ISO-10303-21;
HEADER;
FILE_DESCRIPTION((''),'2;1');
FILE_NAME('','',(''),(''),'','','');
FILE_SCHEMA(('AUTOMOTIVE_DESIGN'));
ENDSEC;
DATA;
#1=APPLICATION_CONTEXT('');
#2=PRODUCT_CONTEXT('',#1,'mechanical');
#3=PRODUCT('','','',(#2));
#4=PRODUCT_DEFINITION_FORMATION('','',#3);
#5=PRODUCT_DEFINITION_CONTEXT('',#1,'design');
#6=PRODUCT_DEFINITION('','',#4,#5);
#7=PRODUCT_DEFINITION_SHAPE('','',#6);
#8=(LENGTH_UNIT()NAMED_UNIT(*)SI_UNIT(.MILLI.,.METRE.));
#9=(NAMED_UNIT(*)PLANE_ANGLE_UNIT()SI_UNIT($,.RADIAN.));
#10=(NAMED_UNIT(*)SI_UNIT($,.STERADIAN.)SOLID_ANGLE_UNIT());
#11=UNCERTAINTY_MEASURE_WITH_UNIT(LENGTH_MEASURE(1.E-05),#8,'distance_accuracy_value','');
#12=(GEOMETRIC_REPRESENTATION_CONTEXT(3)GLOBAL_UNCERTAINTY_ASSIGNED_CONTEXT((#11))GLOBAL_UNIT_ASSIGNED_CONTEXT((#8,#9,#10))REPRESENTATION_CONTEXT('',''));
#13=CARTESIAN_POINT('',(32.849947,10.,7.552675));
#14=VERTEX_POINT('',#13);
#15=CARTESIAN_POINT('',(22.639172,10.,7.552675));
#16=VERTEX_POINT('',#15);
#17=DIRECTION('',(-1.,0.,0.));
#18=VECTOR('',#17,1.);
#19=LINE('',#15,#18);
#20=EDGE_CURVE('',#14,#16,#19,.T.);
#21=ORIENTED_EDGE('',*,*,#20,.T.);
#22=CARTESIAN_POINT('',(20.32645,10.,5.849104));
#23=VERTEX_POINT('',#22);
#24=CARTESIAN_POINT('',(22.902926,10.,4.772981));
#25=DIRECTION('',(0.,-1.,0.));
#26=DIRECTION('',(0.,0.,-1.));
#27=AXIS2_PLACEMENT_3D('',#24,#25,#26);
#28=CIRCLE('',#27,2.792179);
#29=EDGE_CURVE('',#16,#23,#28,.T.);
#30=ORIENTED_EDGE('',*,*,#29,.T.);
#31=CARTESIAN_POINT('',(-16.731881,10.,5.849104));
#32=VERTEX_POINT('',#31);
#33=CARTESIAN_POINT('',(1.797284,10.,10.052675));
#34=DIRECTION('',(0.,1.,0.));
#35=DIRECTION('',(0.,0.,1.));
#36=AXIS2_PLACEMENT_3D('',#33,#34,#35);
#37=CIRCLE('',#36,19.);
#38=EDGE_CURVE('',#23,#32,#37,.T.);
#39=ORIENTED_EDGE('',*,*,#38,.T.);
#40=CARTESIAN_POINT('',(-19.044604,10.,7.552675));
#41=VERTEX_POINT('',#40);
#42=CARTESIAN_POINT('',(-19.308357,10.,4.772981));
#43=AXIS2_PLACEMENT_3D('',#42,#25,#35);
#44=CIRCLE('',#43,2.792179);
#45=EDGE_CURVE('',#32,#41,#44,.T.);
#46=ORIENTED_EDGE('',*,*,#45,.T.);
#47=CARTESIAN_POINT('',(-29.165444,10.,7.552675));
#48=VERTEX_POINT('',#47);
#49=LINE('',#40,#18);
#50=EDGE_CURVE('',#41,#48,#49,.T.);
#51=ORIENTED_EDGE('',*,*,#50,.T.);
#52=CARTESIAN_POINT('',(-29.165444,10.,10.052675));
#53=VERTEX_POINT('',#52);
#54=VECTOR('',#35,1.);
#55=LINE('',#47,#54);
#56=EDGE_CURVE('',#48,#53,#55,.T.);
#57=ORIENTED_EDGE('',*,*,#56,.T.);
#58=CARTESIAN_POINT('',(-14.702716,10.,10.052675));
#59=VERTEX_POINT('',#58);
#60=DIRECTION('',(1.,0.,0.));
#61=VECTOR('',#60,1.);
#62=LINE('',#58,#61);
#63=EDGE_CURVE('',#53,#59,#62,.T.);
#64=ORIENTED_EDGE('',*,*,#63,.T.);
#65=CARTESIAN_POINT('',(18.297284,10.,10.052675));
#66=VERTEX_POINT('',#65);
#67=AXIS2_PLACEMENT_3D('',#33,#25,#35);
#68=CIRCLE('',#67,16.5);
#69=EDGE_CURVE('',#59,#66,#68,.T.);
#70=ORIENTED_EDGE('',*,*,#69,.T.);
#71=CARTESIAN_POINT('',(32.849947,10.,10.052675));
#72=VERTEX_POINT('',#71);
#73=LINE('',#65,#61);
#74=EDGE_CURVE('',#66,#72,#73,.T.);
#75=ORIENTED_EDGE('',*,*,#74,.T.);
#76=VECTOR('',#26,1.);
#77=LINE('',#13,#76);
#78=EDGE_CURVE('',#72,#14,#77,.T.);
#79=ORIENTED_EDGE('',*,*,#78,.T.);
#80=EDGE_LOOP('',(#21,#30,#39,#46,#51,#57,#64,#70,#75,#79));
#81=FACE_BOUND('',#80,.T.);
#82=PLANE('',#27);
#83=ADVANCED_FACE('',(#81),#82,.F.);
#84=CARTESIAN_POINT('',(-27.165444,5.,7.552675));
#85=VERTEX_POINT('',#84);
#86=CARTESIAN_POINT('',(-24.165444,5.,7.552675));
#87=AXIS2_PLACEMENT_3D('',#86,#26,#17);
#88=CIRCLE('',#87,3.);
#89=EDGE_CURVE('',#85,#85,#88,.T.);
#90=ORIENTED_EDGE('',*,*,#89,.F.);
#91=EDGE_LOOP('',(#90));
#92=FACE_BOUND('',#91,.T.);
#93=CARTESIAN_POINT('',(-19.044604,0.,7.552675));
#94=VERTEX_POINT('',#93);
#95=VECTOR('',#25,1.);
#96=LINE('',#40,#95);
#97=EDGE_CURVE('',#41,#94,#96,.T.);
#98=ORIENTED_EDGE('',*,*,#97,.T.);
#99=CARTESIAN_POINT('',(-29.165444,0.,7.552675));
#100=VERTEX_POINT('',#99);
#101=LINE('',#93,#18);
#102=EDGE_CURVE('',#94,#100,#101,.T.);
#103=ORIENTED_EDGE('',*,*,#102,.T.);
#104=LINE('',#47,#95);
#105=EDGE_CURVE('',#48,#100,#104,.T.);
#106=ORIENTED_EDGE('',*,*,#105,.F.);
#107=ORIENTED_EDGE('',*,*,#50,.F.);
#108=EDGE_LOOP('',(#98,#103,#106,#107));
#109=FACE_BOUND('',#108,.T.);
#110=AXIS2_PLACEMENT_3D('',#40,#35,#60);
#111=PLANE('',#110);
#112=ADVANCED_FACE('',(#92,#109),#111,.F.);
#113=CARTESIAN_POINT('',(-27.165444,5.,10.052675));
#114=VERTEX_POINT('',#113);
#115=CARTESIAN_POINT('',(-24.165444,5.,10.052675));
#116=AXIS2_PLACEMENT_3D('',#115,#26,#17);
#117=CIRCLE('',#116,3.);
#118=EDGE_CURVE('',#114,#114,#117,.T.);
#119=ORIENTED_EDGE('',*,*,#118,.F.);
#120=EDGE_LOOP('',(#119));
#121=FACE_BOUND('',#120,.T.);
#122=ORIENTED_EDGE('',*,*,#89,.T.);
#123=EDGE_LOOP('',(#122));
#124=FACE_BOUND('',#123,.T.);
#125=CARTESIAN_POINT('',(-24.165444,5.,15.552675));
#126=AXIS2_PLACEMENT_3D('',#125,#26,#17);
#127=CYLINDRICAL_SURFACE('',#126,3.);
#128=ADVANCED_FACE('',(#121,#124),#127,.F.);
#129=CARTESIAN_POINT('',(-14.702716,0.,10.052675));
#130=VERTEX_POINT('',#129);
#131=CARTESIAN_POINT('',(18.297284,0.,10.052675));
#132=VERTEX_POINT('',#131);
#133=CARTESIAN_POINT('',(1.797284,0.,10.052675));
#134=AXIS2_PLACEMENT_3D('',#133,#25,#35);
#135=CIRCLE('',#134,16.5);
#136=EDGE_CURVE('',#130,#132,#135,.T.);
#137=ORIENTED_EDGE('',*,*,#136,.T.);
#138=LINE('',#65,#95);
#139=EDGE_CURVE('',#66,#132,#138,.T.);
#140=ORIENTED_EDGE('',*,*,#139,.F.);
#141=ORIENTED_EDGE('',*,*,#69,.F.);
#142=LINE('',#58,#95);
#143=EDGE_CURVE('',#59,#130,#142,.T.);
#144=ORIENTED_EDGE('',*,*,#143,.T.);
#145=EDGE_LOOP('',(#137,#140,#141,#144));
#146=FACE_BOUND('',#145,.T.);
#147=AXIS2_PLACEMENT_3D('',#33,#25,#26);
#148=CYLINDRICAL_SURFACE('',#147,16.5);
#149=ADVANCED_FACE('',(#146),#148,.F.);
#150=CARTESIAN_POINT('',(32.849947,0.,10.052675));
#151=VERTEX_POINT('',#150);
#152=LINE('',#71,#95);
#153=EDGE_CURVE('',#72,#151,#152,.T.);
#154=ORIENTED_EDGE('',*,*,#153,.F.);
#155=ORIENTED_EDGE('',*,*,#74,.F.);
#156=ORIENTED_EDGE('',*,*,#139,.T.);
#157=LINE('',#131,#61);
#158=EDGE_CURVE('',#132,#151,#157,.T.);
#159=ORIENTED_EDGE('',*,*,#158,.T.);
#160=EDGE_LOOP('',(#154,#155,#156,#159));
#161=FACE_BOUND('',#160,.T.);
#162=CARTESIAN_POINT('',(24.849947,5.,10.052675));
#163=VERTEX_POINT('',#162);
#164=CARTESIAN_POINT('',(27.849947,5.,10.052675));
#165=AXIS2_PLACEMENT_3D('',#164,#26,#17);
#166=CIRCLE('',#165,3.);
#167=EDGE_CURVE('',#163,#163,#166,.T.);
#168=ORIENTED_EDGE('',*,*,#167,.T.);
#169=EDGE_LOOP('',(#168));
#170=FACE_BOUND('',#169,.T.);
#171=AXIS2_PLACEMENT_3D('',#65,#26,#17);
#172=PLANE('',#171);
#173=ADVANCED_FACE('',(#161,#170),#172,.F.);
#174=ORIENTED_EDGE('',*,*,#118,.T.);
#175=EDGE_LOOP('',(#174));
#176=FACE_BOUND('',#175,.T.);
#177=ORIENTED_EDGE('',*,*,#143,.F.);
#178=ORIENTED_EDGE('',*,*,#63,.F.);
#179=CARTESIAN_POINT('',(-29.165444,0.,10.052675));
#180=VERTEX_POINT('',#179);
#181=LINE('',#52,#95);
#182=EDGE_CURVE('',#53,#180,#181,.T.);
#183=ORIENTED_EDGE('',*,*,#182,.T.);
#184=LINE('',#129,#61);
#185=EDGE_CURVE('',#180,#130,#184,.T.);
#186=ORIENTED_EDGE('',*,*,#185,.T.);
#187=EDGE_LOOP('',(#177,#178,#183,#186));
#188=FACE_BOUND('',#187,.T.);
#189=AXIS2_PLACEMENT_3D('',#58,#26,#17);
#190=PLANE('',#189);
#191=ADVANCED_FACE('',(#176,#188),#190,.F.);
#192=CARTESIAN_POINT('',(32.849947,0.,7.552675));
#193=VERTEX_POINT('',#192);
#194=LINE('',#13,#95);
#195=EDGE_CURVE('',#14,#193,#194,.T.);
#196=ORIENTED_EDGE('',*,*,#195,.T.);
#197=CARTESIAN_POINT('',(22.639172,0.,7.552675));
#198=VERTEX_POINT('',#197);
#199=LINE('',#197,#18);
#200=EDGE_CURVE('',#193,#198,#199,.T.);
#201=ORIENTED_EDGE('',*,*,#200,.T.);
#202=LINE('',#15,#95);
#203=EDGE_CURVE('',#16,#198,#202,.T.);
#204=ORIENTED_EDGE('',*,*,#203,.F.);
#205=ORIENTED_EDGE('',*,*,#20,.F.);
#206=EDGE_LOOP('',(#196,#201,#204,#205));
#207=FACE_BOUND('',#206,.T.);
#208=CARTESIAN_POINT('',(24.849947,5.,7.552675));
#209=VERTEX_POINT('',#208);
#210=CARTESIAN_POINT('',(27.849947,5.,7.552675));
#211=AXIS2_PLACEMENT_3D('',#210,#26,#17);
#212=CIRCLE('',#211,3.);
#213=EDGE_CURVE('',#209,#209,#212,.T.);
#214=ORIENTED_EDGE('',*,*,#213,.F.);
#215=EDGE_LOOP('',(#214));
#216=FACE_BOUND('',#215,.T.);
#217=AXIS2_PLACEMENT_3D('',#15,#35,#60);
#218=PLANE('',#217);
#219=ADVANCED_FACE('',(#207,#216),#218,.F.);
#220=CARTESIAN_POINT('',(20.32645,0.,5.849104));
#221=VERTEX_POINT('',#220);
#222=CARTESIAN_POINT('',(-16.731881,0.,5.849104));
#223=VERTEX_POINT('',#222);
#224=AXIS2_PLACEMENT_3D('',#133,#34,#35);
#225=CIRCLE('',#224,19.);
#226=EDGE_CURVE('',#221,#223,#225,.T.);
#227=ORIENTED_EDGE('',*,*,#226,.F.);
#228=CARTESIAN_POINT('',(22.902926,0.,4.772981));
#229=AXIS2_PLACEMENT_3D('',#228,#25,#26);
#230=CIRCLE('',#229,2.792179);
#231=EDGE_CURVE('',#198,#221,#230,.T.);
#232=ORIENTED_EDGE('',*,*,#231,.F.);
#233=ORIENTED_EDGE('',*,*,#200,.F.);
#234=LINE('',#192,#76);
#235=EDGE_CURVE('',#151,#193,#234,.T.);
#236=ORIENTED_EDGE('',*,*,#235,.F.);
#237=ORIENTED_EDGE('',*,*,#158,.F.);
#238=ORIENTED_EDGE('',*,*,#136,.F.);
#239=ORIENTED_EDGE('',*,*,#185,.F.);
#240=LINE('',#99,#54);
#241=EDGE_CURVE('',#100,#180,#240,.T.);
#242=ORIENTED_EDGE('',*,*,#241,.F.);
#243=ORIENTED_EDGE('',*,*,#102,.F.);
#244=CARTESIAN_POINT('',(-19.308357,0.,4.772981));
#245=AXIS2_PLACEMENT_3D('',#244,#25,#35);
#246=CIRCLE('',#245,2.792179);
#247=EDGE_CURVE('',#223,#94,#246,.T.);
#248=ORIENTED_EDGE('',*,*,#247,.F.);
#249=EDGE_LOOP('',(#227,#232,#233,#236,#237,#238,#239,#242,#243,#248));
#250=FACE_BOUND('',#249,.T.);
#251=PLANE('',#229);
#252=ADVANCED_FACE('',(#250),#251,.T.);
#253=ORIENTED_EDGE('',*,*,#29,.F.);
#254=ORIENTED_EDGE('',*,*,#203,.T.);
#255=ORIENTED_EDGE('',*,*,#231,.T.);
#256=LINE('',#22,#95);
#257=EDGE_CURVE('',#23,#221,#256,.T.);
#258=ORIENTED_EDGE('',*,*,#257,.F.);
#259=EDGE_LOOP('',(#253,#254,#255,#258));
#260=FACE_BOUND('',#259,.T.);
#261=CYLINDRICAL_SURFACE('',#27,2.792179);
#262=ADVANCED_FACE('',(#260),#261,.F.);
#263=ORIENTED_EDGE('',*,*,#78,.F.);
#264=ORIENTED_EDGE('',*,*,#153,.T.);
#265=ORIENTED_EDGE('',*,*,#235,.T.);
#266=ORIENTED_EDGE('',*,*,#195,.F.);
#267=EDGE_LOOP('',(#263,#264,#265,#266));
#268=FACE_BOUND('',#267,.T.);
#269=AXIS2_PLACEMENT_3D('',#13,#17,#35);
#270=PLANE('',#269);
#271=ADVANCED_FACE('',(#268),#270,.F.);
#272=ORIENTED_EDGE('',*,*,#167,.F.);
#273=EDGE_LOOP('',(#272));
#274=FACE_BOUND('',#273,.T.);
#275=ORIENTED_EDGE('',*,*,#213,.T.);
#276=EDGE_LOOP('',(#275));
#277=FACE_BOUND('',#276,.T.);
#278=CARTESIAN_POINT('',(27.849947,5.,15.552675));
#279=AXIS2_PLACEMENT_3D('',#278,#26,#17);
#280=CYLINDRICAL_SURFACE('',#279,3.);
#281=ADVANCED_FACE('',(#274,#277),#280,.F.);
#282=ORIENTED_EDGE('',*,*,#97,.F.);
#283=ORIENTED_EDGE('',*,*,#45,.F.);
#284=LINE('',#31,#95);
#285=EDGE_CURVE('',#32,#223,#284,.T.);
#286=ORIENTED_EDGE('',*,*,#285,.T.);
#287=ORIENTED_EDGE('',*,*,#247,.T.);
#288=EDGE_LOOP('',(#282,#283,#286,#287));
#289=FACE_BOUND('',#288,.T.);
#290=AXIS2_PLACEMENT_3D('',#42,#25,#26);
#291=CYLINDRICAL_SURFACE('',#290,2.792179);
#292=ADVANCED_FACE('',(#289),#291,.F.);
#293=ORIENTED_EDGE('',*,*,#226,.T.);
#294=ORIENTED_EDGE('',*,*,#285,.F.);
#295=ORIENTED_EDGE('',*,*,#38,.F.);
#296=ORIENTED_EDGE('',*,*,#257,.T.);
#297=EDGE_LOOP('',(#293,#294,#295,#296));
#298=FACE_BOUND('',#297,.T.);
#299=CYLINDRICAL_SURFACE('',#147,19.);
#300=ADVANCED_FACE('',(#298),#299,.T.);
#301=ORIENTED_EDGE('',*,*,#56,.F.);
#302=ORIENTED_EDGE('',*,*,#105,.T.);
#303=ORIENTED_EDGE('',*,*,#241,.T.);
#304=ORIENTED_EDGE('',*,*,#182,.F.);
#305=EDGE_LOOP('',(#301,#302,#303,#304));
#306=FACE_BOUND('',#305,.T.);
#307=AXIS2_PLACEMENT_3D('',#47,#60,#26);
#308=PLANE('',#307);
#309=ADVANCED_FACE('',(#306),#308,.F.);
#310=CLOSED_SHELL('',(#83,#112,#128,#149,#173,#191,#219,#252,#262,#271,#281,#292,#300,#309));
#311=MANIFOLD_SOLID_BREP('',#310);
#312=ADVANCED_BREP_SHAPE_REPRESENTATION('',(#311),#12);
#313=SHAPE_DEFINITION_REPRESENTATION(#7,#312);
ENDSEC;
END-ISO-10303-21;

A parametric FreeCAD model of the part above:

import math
import FreeCAD as App
import Part
import Sketcher

V = App.Vector

doc = App.newDocument("Part")
body = doc.addObject("PartDesign::Body", "Body")

# Sketch on XZ plane
sketch1 = body.newObject("Sketcher::SketchObject", "Sketch")
sketch1.AttachmentSupport = (doc.getObject("XZ_Plane"), [""])
sketch1.MapMode = "FlatFace"
sketch1.addGeometry(Part.LineSegment(V(-29.2, 10.1, 0), V(-14.7, 10.1, 0)), False)
sketch1.addGeometry(Part.ArcOfCircle(Part.Circle(V(1.8, 10.1, 0), V(0, 0, 1), 16.5), math.radians(180), math.radians(360)), False)
sketch1.addGeometry(Part.LineSegment(V(18.3, 10.1, 0), V(32.8, 10.1, 0)), False)
sketch1.addGeometry(Part.LineSegment(V(32.8, 10.1, 0), V(32.8, 7.6, 0)), False)
sketch1.addGeometry(Part.LineSegment(V(32.8, 7.6, 0), V(22.6, 7.6, 0)), False)
sketch1.addGeometry(Part.ArcOfCircle(Part.Circle(V(22.9, 4.8, 0), V(0, 0, 1), 2.8), math.radians(95), math.radians(157)), False)
sketch1.addGeometry(Part.ArcOfCircle(Part.Circle(V(1.8, 10.1, 0), V(0, 0, 1), 19), math.radians(-167), math.radians(-13)), False)
sketch1.addGeometry(Part.ArcOfCircle(Part.Circle(V(-19.3, 4.8, 0), V(0, 0, 1), 2.8), math.radians(23), math.radians(85)), False)
sketch1.addGeometry(Part.LineSegment(V(-19, 7.6, 0), V(-29.2, 7.6, 0)), False)
sketch1.addGeometry(Part.LineSegment(V(-29.2, 7.6, 0), V(-29.2, 10.1, 0)), False)
sketch1.addConstraint(Sketcher.Constraint("Coincident", 0, 2, 1, 1))
sketch1.addConstraint(Sketcher.Constraint("Coincident", 1, 2, 2, 1))
sketch1.addConstraint(Sketcher.Constraint("Coincident", 2, 2, 3, 1))
sketch1.addConstraint(Sketcher.Constraint("Coincident", 3, 2, 4, 1))
sketch1.addConstraint(Sketcher.Constraint("Coincident", 4, 2, 5, 1))
sketch1.addConstraint(Sketcher.Constraint("Coincident", 5, 2, 6, 2))
sketch1.addConstraint(Sketcher.Constraint("Coincident", 6, 1, 7, 1))
sketch1.addConstraint(Sketcher.Constraint("Coincident", 7, 2, 8, 1))
sketch1.addConstraint(Sketcher.Constraint("Coincident", 8, 2, 9, 1))
sketch1.addConstraint(Sketcher.Constraint("Coincident", 9, 2, 0, 1))
sketch1.addConstraint(Sketcher.Constraint("Horizontal", 0))
sketch1.addConstraint(Sketcher.Constraint("Horizontal", 2))
sketch1.addConstraint(Sketcher.Constraint("Vertical", 3))
sketch1.addConstraint(Sketcher.Constraint("Horizontal", 4))
sketch1.addConstraint(Sketcher.Constraint("Horizontal", 8))
sketch1.addConstraint(Sketcher.Constraint("Vertical", 9))
sketch1.addConstraint(Sketcher.Constraint("Coincident", 6, 3, 1, 3))
sketch1.addConstraint(Sketcher.Constraint("Equal", 5, 7))
sketch1.addConstraint(Sketcher.Constraint("Horizontal", 5, 3, 7, 3))
sketch1.addConstraint(Sketcher.Constraint("Horizontal", 6, 3, 0, 2))
sketch1.addConstraint(Sketcher.Constraint("Horizontal", 0, 2, 1, 2))
sketch1.addConstraint(Sketcher.Constraint("Horizontal", 5, 2, 6, 1))
sketch1.addConstraint(Sketcher.Constraint("Horizontal", 4, 2, 7, 2))
sketch1.addConstraint(Sketcher.Constraint("Radius", 6, 19.0))
sketch1.addConstraint(Sketcher.Constraint("Radius", 1, 16.5))
sketch1.addConstraint(Sketcher.Constraint("DistanceY", 3, 2, 3, 1, 2.5))
sketch1.addConstraint(Sketcher.Constraint("Radius", 5, 2.792179))
sketch1.addConstraint(Sketcher.Constraint("DistanceX", 0, 1, 0, 2, 14.462729))
sketch1.addConstraint(Sketcher.Constraint("DistanceX", 8, 2, 8, 1, 10.12084))
sketch1.addConstraint(Sketcher.Constraint("DistanceX", 2, 1, 2, 2, 14.552662))
sketch1.addConstraint(Sketcher.Constraint("DistanceY", -1, 1, 5, 3, 4.772981))
sketch1.addConstraint(Sketcher.Constraint("DistanceX", -1, 1, 5, 2, 20.32645))
sketch1.addConstraint(Sketcher.Constraint("DistanceX", 6, 1, -1, 1, 16.731881))
pad1 = body.newObject("PartDesign::Pad", "Pad")
pad1.Profile = sketch1
pad1.Length = 10
pad1.Reversed = True

# Sketch on XY plane
sketch2 = body.newObject("Sketcher::SketchObject", "Sketch001")
sketch2.AttachmentSupport = (doc.getObject("XY_Plane"), [""])
sketch2.MapMode = "FlatFace"
sketch2.AttachmentOffset = App.Placement(V(0, 0, 7.552675), App.Rotation())
sketch2.addGeometry(Part.Circle(V(-24.2, 5, 0), V(0, 0, 1), 3), False)
sketch2.addGeometry(Part.Circle(V(27.8, 5, 0), V(0, 0, 1), 3), False)
sketch2.addConstraint(Sketcher.Constraint("Equal", 0, 1))
sketch2.addConstraint(Sketcher.Constraint("Horizontal", 0, 3, 1, 3))
sketch2.addConstraint(Sketcher.Constraint("Diameter", 0, 6.0))
sketch2.addConstraint(Sketcher.Constraint("DistanceY", -1, 1, 0, 3, 5.0))
sketch2.addConstraint(Sketcher.Constraint("DistanceX", 0, 3, 1, 3, 52.015391))
sketch2.addConstraint(Sketcher.Constraint("DistanceX", 0, 3, -1, 1, 24.165444))
pocket1 = body.newObject("PartDesign::Pocket", "Pocket")
pocket1.Profile = sketch2
pocket1.Length = 8
pocket1.Reversed = True

doc.recompute()
